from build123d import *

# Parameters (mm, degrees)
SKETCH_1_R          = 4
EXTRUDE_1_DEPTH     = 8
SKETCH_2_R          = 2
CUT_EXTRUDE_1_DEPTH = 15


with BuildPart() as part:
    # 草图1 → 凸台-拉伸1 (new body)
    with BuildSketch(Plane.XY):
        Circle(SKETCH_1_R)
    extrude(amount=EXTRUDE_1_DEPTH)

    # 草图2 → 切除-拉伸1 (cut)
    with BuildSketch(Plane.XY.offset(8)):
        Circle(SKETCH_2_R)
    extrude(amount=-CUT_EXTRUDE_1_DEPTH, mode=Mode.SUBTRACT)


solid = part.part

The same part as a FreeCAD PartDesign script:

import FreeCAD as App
import Part
import Sketcher
from FreeCAD import Vector
Q = App.Units.Quantity

doc = App.newDocument("Part")
body = doc.addObject("PartDesign::Body", "Body")

sketch1 = body.newObject("Sketcher::SketchObject", "Sketch")
sketch1.AttachmentSupport = (doc.getObject("XY_Plane"), [""])
sketch1.MapMode = "FlatFace"
sketch1.addGeometry(Part.Circle(Vector(0, 0, 0), Vector(0, 0, 1), 4), False)
sketch1.addConstraint([
    Sketcher.Constraint("Coincident", 0, 3, -1, 1),
    Sketcher.Constraint("Diameter", 0, Q("8 mm")),
])
pad1 = body.newObject("PartDesign::Pad", "Pad")
pad1.Profile = sketch1
pad1.Length = 8

sketch2 = body.newObject("Sketcher::SketchObject", "Sketch001")
sketch2.AttachmentSupport = (doc.getObject("XY_Plane"), [""])
sketch2.MapMode = "FlatFace"
sketch2.AttachmentOffset = App.Placement(Vector(0, 0, 8), App.Rotation())
sketch2.addGeometry(Part.Circle(Vector(0, 0, 0), Vector(0, 0, 1), 2), False)
sketch2.addConstraint([
    Sketcher.Constraint("Coincident", 0, 3, -1, 1),
    Sketcher.Constraint("Diameter", 0, Q("4 mm")),
])
pocket1 = body.newObject("PartDesign::Pocket", "Pocket")
pocket1.Profile = sketch2
pocket1.Length = 15

doc.recompute()
